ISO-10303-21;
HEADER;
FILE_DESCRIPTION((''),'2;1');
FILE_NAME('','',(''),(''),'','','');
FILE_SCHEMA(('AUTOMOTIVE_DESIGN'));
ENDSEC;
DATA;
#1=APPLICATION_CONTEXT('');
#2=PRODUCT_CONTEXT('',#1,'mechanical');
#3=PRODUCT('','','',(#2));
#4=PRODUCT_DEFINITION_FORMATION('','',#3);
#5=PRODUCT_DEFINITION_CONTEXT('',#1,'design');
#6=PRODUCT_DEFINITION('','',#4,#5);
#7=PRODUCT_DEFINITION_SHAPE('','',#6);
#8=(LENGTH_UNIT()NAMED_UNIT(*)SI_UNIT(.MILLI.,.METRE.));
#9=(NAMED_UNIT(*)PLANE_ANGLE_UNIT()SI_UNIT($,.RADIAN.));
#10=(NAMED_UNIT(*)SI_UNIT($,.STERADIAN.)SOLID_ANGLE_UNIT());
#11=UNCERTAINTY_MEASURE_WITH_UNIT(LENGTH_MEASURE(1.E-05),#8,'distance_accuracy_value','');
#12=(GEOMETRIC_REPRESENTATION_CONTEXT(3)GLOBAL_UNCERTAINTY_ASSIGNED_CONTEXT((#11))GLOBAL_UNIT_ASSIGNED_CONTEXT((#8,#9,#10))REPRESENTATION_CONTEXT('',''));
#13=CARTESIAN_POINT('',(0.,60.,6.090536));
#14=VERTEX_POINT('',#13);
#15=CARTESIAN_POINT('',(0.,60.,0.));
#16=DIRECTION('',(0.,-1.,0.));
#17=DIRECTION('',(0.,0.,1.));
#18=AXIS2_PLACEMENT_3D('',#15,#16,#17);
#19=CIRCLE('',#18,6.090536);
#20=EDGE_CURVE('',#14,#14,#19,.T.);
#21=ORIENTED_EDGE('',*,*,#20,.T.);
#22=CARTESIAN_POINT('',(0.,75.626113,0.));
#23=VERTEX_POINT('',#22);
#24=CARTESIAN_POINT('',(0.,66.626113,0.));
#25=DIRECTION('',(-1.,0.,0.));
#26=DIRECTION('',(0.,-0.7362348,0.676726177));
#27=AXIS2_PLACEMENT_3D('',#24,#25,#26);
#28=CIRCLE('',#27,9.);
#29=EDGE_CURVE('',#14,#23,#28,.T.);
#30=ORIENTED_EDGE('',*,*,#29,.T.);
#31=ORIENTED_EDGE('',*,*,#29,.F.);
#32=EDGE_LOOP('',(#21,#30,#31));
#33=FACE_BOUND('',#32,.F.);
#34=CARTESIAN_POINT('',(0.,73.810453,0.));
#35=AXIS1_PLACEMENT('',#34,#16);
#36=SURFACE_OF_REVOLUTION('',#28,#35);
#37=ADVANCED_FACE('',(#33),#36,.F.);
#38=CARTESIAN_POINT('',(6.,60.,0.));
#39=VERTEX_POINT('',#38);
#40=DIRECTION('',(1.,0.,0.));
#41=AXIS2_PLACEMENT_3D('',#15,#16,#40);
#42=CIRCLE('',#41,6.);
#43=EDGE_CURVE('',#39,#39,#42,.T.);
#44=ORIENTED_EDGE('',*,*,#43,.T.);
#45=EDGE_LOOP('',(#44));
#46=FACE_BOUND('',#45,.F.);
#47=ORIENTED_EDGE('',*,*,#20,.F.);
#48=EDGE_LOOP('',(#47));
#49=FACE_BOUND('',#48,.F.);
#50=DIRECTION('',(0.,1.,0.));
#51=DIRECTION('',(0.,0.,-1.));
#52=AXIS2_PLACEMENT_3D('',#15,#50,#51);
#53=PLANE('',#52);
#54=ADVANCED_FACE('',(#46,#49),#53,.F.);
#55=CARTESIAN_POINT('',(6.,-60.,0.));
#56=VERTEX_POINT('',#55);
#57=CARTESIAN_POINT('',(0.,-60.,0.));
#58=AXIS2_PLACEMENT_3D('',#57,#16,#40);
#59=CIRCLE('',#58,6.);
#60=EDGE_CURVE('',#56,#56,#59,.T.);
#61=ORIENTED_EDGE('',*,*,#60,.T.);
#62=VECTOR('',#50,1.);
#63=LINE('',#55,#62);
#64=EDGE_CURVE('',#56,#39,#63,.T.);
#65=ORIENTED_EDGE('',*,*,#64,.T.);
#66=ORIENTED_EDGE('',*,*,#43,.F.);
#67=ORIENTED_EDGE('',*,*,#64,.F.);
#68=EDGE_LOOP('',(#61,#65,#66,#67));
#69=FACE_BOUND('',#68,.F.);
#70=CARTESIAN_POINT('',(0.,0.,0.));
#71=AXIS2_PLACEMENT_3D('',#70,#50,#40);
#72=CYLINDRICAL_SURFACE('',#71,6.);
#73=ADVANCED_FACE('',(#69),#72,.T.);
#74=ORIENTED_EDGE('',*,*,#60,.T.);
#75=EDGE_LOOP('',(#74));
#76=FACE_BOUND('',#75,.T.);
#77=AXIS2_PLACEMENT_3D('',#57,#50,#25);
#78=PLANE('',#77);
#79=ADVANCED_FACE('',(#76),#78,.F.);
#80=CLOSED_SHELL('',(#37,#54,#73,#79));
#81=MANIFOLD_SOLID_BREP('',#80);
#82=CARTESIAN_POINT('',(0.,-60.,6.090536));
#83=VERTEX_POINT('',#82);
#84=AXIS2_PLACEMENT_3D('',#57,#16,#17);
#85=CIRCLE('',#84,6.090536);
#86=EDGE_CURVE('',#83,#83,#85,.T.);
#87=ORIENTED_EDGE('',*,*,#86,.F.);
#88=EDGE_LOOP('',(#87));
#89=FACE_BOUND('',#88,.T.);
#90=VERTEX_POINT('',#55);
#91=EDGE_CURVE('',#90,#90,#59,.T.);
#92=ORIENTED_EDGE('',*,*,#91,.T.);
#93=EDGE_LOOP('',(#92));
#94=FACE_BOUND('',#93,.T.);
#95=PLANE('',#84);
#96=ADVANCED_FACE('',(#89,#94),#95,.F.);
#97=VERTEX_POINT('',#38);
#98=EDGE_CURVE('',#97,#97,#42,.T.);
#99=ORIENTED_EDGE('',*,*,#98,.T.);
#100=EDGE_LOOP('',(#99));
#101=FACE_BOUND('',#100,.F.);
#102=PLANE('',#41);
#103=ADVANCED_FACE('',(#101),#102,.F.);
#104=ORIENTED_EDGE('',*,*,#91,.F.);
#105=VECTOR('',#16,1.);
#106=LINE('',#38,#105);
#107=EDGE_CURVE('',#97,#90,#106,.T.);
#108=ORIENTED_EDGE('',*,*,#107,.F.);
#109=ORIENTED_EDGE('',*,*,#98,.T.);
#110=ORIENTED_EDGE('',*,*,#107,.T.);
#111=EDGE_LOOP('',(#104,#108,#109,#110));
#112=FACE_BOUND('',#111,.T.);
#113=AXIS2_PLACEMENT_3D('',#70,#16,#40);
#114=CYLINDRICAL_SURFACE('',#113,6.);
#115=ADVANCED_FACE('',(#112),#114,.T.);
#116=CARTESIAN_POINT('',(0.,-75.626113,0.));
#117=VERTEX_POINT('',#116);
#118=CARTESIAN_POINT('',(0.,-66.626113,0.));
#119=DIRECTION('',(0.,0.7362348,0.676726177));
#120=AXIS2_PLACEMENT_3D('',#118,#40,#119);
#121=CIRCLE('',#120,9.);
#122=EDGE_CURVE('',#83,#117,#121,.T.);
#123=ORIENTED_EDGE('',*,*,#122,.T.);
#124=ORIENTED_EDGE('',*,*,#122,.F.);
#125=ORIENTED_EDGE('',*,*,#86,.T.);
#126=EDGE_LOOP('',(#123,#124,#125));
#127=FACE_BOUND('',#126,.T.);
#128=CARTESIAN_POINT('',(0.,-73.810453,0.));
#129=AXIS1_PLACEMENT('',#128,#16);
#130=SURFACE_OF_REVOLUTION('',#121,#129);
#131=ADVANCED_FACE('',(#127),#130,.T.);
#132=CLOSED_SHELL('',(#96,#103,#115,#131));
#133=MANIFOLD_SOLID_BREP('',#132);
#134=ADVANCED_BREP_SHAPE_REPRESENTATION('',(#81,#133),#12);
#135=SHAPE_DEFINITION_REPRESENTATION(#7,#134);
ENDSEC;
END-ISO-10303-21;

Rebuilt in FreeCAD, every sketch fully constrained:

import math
import FreeCAD as App
import Part
import Sketcher

doc = App.newDocument("Part")
body = doc.addObject("PartDesign::Body", "Body")

# Sketch on XZ plane
sketch1 = body.newObject("Sketcher::SketchObject", "Sketch")
sketch1.AttachmentSupport = (doc.getObject("XZ_Plane"), [""])
sketch1.MapMode = "FlatFace"
sketch1.addGeometry(Part.Circle(App.Vector(0, 0, 0), App.Vector(0, 0, 1), 6), False)
sketch1.addConstraint([
    Sketcher.Constraint("Coincident", 0, 3, -1, 1),
    Sketcher.Constraint("Diameter", 0, 12.0),
])
pad1 = body.newObject("PartDesign::Pad", "Pad")
pad1.Profile = sketch1
pad1.Length = 120
pad1.Midplane = True

# Sketch on YZ plane
sketch2 = body.newObject("Sketcher::SketchObject", "Sketch001")
sketch2.AttachmentSupport = (doc.getObject("YZ_Plane"), [""])
sketch2.MapMode = "FlatFace"
sketch2.addGeometry([
    Part.LineSegment(App.Vector(-60, 0, 0), App.Vector(-60, 6.090536, 0)),
    Part.ArcOfCircle(Part.Circle(App.Vector(-66.626113, 0, 0), App.Vector(0, 0, 1), 9), math.radians(42.588342), math.radians(180.000003)),
    Part.LineSegment(App.Vector(-75.626113, 0, 0), App.Vector(-60, 0, 0)),
], False)
sketch2.addConstraint([
    Sketcher.Constraint("Coincident", 0, 2, 1, 1),
    Sketcher.Constraint("Coincident", 1, 2, 2, 1),
    Sketcher.Constraint("Coincident", 2, 2, 0, 1),
    Sketcher.Constraint("Vertical", 0),
    Sketcher.Constraint("Horizontal", 2),
    Sketcher.Constraint("PointOnObject", 1, 3, -1),
    Sketcher.Constraint("PointOnObject", 1, 2, -1),
    Sketcher.Constraint("Radius", 1, 9.0),
    Sketcher.Constraint("DistanceX", 0, 2, -1, 1, 60.0),
    Sketcher.Constraint("DistanceX", 2, 1, 2, 2, 15.626113),
])
revolution = body.newObject("PartDesign::Revolution", "Revolution")
revolution.Profile = sketch2
revolution.ReferenceAxis = (sketch2, ["H_Axis"])
revolution.Angle = 360
body2 = doc.addObject("PartDesign::Body", "Body001")
doc.recompute()

mirroring = doc.addObject("Part::Mirroring", "Mirroring")
mirroring.Source = body
mirroring.Base = App.Vector(0, 0, 0)
mirroring.Normal = App.Vector(0, -1, 0)
body2.BaseFeature = mirroring
doc.recompute()
mirroring.Visibility = False

doc.recompute()
